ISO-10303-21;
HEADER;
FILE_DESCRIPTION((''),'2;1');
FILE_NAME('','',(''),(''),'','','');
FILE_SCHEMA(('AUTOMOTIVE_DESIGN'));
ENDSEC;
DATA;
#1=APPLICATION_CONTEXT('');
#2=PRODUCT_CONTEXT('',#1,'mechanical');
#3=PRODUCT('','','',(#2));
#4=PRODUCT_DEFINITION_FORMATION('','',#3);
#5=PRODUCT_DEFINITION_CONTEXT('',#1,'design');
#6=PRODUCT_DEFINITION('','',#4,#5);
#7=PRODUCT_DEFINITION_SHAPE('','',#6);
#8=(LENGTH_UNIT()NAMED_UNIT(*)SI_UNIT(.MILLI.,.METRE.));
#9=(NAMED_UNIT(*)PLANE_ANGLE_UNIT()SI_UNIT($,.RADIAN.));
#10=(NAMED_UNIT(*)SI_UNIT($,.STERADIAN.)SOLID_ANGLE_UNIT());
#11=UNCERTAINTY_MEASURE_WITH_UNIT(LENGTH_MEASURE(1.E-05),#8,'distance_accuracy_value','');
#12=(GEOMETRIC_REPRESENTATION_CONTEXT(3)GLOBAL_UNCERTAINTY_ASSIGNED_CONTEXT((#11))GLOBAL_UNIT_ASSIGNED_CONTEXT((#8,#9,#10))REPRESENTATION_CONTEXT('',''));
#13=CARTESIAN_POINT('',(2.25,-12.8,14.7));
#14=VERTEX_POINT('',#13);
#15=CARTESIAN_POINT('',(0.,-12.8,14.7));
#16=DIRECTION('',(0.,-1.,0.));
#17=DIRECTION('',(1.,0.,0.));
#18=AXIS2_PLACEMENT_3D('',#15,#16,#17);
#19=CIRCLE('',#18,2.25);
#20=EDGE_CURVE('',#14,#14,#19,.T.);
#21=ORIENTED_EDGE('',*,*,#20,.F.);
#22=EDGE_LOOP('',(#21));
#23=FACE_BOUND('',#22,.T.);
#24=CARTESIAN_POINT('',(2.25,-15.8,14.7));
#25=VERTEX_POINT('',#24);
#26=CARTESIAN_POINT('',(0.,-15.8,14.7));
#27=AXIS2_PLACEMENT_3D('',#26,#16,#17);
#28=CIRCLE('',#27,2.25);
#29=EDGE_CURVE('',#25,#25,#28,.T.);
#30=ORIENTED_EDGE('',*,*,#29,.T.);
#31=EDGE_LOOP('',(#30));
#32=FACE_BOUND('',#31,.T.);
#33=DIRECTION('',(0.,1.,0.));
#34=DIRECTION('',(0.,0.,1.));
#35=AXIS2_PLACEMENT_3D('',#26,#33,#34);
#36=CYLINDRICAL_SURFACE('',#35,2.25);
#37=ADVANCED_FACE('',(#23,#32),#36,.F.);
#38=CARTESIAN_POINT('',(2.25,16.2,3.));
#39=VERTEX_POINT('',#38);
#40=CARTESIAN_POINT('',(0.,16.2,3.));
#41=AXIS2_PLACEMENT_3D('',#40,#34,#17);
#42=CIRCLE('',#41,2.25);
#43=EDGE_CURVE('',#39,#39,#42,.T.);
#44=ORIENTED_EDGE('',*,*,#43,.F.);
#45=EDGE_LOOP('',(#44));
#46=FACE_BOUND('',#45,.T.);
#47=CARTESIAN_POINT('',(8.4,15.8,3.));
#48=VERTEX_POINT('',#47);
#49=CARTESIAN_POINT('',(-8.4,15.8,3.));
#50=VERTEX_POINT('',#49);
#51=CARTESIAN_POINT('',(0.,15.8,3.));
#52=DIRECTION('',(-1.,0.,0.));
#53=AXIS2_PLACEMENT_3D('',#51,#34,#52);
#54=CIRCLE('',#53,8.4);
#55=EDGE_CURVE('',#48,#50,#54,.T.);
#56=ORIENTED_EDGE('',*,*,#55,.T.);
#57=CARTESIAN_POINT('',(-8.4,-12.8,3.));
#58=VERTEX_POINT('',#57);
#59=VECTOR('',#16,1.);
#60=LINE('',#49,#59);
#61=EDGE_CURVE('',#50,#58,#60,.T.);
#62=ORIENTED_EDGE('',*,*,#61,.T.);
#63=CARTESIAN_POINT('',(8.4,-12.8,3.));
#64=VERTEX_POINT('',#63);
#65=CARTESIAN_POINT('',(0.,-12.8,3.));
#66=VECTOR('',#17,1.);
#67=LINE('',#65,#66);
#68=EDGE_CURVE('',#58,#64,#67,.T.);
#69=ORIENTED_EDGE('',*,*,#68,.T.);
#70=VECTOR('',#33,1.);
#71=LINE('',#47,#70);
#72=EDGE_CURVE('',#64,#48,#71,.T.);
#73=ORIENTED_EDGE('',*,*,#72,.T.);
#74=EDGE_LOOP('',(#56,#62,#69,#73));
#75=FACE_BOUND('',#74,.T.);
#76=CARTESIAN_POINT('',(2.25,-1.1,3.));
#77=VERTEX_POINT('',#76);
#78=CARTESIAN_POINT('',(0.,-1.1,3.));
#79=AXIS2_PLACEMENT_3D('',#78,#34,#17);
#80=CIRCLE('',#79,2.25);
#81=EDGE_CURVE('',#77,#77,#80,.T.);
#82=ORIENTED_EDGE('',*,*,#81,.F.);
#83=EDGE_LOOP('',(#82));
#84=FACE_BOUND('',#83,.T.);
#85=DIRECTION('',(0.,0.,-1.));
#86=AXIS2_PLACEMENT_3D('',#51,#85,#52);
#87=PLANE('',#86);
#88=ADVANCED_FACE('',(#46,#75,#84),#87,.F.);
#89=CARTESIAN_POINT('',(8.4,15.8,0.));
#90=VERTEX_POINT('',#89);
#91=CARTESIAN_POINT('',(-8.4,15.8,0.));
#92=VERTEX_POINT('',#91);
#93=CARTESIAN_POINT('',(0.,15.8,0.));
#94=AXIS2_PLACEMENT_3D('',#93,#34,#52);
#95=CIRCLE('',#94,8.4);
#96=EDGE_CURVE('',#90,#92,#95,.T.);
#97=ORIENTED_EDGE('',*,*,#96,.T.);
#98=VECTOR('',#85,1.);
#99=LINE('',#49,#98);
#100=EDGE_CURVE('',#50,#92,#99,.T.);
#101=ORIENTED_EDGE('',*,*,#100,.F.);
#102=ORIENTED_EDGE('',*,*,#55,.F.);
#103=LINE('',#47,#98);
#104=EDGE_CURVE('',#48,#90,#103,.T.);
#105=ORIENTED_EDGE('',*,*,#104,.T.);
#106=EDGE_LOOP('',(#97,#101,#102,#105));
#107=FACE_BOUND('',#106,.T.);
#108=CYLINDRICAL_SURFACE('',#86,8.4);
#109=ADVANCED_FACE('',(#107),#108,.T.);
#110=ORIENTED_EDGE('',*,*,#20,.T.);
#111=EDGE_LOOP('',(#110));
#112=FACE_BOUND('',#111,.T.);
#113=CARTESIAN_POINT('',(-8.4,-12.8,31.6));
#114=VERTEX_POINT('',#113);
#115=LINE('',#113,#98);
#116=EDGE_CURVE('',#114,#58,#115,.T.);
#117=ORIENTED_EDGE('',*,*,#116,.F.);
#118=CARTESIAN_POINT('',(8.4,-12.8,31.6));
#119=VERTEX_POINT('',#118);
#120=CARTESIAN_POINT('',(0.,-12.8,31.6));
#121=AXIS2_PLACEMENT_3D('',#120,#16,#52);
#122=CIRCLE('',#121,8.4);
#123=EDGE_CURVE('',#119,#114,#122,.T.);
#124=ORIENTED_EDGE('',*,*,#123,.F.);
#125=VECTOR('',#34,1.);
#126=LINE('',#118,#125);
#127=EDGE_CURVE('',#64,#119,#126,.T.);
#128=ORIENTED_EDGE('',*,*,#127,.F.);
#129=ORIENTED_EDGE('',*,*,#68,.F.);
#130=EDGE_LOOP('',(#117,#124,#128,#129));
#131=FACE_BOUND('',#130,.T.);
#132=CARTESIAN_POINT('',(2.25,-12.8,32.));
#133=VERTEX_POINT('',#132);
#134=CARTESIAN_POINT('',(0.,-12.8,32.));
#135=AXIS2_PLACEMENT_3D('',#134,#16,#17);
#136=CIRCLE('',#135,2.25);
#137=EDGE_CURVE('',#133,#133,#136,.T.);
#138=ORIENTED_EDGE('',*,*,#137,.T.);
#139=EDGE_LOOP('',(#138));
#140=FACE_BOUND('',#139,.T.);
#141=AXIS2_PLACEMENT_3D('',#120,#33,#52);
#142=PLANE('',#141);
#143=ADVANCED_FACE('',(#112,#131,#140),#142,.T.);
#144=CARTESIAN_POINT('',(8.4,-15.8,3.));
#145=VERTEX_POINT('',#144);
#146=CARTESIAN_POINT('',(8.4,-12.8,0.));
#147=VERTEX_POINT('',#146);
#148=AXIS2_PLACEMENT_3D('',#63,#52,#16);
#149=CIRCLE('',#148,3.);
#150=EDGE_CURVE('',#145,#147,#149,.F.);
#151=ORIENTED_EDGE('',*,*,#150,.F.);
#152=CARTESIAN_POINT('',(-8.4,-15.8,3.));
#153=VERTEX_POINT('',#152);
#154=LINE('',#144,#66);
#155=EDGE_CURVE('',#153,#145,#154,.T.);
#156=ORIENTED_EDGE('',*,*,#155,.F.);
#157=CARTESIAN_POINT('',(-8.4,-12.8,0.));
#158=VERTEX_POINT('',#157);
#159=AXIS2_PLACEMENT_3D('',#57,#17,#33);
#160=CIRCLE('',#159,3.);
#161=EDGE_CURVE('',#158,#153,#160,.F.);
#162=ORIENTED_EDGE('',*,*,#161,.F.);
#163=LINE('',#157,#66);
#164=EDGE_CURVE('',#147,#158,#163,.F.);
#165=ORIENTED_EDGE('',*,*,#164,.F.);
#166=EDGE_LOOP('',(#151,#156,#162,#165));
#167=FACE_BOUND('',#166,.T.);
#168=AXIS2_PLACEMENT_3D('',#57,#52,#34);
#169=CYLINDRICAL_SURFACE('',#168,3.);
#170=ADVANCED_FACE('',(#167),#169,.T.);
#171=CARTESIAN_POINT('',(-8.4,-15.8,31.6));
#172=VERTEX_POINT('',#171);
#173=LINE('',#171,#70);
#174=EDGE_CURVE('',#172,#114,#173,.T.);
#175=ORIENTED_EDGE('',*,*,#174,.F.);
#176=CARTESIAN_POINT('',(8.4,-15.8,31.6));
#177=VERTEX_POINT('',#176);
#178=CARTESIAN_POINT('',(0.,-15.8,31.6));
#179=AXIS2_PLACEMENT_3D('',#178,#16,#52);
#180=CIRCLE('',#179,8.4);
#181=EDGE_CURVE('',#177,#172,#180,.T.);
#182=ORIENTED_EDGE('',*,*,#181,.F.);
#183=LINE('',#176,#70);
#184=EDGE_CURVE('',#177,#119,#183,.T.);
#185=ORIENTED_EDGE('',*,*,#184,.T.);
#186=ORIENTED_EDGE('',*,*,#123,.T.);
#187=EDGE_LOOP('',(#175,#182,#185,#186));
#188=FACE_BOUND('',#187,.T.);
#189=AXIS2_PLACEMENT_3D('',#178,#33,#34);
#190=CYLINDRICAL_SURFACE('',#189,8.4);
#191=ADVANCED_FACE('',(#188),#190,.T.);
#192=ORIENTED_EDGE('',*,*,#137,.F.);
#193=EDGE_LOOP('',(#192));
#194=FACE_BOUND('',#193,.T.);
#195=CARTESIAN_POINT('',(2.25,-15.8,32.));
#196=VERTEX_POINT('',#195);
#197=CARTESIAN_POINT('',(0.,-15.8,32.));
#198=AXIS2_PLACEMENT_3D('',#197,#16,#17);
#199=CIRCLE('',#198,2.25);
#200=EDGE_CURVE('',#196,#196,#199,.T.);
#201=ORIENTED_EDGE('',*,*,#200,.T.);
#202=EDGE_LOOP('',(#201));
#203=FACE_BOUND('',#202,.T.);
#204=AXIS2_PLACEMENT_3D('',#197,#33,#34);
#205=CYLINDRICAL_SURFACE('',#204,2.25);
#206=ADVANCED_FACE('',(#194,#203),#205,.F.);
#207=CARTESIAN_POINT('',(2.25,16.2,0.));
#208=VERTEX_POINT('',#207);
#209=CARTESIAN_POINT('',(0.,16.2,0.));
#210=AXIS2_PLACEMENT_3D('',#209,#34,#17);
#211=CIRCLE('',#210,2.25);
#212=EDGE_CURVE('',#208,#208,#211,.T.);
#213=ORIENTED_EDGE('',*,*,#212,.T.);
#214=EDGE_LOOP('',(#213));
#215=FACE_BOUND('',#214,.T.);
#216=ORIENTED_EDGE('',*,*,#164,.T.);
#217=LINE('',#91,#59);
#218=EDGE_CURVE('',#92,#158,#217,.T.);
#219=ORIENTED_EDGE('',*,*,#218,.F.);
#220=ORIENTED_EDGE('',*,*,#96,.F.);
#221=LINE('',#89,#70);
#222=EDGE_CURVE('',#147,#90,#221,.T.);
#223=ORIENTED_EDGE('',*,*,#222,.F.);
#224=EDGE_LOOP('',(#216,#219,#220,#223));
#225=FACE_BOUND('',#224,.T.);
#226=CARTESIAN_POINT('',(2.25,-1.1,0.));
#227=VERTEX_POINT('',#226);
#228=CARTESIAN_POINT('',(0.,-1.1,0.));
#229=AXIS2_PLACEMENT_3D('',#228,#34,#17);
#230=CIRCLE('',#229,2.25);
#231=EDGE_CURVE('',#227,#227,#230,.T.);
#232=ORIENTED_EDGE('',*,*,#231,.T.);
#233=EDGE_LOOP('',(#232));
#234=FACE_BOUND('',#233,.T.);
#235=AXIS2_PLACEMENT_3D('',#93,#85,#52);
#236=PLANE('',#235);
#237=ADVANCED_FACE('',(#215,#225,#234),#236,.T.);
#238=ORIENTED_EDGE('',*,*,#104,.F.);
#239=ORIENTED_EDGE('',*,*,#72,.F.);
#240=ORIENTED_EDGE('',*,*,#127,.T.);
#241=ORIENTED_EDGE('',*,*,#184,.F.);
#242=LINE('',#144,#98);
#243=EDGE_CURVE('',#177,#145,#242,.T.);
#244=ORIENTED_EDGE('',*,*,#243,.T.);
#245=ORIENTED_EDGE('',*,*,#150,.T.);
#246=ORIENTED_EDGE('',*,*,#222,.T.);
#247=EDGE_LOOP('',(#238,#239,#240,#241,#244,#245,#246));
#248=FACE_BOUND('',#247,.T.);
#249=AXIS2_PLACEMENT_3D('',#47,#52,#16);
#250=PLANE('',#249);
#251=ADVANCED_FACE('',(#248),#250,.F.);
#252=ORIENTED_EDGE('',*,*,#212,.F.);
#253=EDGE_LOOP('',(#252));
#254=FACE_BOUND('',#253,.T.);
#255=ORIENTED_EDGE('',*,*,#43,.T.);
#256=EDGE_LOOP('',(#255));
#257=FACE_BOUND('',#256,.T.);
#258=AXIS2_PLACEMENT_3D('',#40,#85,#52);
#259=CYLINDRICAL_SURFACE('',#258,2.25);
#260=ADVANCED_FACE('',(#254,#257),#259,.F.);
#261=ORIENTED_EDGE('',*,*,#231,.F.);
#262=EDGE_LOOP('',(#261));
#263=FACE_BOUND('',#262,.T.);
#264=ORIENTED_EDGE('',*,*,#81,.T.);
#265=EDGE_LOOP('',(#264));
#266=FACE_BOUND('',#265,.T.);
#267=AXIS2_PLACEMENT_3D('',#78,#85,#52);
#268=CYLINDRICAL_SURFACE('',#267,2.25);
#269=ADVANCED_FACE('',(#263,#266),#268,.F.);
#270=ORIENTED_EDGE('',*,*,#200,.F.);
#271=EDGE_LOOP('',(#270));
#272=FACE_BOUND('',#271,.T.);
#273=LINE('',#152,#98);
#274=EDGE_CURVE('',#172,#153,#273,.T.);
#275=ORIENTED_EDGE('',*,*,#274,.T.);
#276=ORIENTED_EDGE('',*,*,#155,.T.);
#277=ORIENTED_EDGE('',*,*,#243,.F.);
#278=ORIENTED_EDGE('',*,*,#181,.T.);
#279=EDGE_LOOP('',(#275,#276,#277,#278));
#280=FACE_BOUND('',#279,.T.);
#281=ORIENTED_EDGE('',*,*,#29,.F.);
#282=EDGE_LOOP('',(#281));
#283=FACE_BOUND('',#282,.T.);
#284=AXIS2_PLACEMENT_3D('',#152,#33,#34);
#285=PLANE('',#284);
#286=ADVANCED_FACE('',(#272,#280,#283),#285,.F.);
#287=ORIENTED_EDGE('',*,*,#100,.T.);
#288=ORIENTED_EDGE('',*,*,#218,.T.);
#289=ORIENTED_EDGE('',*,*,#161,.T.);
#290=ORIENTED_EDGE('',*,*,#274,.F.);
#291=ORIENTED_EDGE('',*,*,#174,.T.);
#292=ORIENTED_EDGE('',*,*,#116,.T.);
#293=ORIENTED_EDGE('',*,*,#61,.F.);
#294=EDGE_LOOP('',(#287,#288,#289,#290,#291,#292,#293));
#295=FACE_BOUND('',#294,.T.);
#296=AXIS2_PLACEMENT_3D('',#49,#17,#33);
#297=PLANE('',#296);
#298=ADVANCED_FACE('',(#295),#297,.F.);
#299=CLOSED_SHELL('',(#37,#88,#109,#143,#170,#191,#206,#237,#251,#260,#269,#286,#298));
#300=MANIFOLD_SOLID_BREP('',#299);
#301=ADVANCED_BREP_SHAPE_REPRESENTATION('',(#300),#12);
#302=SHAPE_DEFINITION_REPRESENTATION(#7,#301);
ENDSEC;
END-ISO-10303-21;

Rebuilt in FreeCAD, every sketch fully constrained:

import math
import FreeCAD as App
import Part
import Sketcher
from FreeCAD import Vector
Q = App.Units.Quantity


def edges_at(feature, points):
    """Names of the edges that pass closest to the given points."""
    edges = feature.Shape.Edges
    near = lambda p: min(range(len(edges)), key=lambda i: edges[i].distToShape(Part.Vertex(*p))[0])
    return sorted({f"Edge{near(p) + 1}" for p in points})

doc = App.newDocument("Part")
body = doc.addObject("PartDesign::Body", "Body")

sketch1 = body.newObject("Sketcher::SketchObject", "Sketch")
sketch1.AttachmentSupport = (doc.getObject("XY_Plane"), [""])
sketch1.MapMode = "FlatFace"
sketch1.addGeometry([
    Part.LineSegment(Vector(-8.4, 15.8, 0), Vector(-8.4, -15.8, 0)),
    Part.LineSegment(Vector(-8.4, -15.8, 0), Vector(8.4, -15.8, 0)),
    Part.LineSegment(Vector(8.4, -15.8, 0), Vector(8.4, 15.8, 0)),
    Part.ArcOfCircle(Part.Circle(Vector(0, 15.8, 0), Vector(0, 0, 1), 8.4), math.radians(0), math.radians(180)),
    Part.Circle(Vector(0, -1.1, 0), Vector(0, 0, 1), 2.25),
    Part.Circle(Vector(0, 16.2, 0), Vector(0, 0, 1), 2.25),
], False)
sketch1.addConstraint([
    Sketcher.Constraint("Coincident", 0, 2, 1, 1),
    Sketcher.Constraint("Coincident", 1, 2, 2, 1),
    Sketcher.Constraint("Tangent", 2, 2, 3, 1),
    Sketcher.Constraint("Tangent", 3, 2, 0, 1),
    Sketcher.Constraint("Vertical", 0),
    Sketcher.Constraint("Horizontal", 1),
    Sketcher.Constraint("Vertical", 2),
    Sketcher.Constraint("Equal", 4, 5),
    Sketcher.Constraint("Symmetric", 0, 2, 2, 2, -1, 1),
    Sketcher.Constraint("PointOnObject", 4, 3, -2),
    Sketcher.Constraint("PointOnObject", 5, 3, -2),
    Sketcher.Constraint("Diameter", 4, Q("4.5 mm")),
    Sketcher.Constraint("Radius", 3, Q("8.4 mm")),
    Sketcher.Constraint("DistanceY", 0, 2, 0, 1, Q("31.6 mm")),
    Sketcher.Constraint("DistanceY", 0, 2, 5, 3, Q("32 mm")),
    Sketcher.Constraint("DistanceY", 4, 3, -1, 1, Q("1.1 mm")),
])
pad1 = body.newObject("PartDesign::Pad", "Pad")
pad1.Profile = sketch1
pad1.Length = 3
doc.recompute()

datumline = body.newObject("PartDesign::Line", "DatumLine")
datumline.Placement = App.Placement(Vector(0, -14.3, 1.5), App.Rotation(Vector(0, 0, 1), Vector(1, 0, 0)))
polarpattern = body.newObject("PartDesign::PolarPattern", "PolarPattern")
polarpattern.Originals = [pad1]
polarpattern.Axis = (datumline, [""])
polarpattern.Angle = 90
polarpattern.Occurrences = 2
body.Tip = polarpattern
doc.recompute()

fillet = body.newObject("PartDesign::Fillet", "Fillet")
fillet.Base = (polarpattern, edges_at(polarpattern, [(0, -15.8, 0)]))
fillet.Radius = 3

doc.recompute()
